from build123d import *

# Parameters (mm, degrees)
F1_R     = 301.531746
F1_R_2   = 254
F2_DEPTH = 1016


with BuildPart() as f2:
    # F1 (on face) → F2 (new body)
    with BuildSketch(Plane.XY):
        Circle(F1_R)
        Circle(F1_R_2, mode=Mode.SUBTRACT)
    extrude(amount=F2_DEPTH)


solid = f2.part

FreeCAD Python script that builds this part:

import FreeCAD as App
import Part
import Sketcher
Q = App.Units.Quantity

doc = App.newDocument("Part")
body = doc.addObject("PartDesign::Body", "Body")

# Sketch on XY plane
sketch1 = body.newObject("Sketcher::SketchObject", "Sketch")
sketch1.AttachmentSupport = (doc.getObject("XY_Plane"), [""])
sketch1.MapMode = "FlatFace"
sketch1.addGeometry(Part.Circle(App.Vector(0, 0, 0), App.Vector(0, 0, 1), 302), False)
sketch1.addGeometry(Part.Circle(App.Vector(0, 0, 0), App.Vector(0, 0, 1), 254), False)
sketch1.addConstraint(Sketcher.Constraint("Coincident", 0, 3, -1, 1))
sketch1.addConstraint(Sketcher.Constraint("Coincident", 1, 3, -1, 1))
sketch1.addConstraint(Sketcher.Constraint("Diameter", 1, Q("20 in")))
sketch1.addConstraint(Sketcher.Constraint("Diameter", 0, Q("603.063492 mm")))
pad1 = body.newObject("PartDesign::Pad", "Pad")
pad1.Profile = sketch1
pad1.Length = Q("40 in")

doc.recompute()
